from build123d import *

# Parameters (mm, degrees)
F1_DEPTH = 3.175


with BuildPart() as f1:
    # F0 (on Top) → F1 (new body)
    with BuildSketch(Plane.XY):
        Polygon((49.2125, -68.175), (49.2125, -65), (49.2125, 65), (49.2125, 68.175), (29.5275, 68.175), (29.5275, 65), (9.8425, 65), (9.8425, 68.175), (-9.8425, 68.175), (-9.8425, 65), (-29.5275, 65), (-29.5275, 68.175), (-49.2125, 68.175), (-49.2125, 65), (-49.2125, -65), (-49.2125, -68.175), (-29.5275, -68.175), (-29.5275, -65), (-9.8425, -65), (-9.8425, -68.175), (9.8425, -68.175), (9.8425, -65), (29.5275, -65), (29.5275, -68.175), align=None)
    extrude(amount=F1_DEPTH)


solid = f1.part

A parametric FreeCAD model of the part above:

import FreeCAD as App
import Part
import Sketcher
Q = App.Units.Quantity


def add_polygon(sketch, points):
    """Adds a closed chain of lines whose ends are joined by coincident constraints."""
    first, n = sketch.GeometryCount, len(points)
    for a, b in zip(points, points[1:] + points[:1]):
        sketch.addGeometry(Part.LineSegment(App.Vector(*a, 0), App.Vector(*b, 0)), False)
    for i in range(n):
        sketch.addConstraint(Sketcher.Constraint("Coincident", first + i, 2, first + (i + 1) % n, 1))

doc = App.newDocument("Part")
body = doc.addObject("PartDesign::Body", "Body")

sketch1 = body.newObject("Sketcher::SketchObject", "Sketch")
sketch1.AttachmentSupport = (doc.getObject("XY_Plane"), [""])
sketch1.MapMode = "FlatFace"
add_polygon(sketch1, [(49.2, -68.2), (49.2, 68.2), (29.5, 68.2), (29.5, 65), (9.8, 65), (9.8, 68.2), (-9.8, 68.2), (-9.8, 65), (-29.5, 65), (-29.5, 68.2), (-49.2, 68.2), (-49.2, -68.2), (-29.5, -68.2), (-29.5, -65), (-9.8, -65), (-9.8, -68.2), (9.8, -68.2), (9.8, -65), (29.5, -65), (29.5, -68.2)])
sketch1.addConstraint([
    Sketcher.Constraint("Vertical", 0),
    Sketcher.Constraint("Horizontal", 1),
    Sketcher.Constraint("Vertical", 2),
    Sketcher.Constraint("Horizontal", 3),
    Sketcher.Constraint("Vertical", 4),
    Sketcher.Constraint("Horizontal", 5),
    Sketcher.Constraint("Vertical", 6),
    Sketcher.Constraint("Horizontal", 7),
    Sketcher.Constraint("Vertical", 8),
    Sketcher.Constraint("Horizontal", 9),
    Sketcher.Constraint("Vertical", 10),
    Sketcher.Constraint("Horizontal", 11),
    Sketcher.Constraint("Vertical", 12),
    Sketcher.Constraint("Horizontal", 13),
    Sketcher.Constraint("Vertical", 14),
    Sketcher.Constraint("Horizontal", 15),
    Sketcher.Constraint("Vertical", 16),
    Sketcher.Constraint("Horizontal", 17),
    Sketcher.Constraint("Vertical", 18),
    Sketcher.Constraint("Horizontal", 19),
    Sketcher.Constraint("Symmetric", 0, 2, 10, 2, -1, 1),
    Sketcher.Constraint("Symmetric", 2, 2, 12, 2, -1, 1),
    Sketcher.Constraint("Symmetric", 4, 2, 14, 2, -1, 1),
    Sketcher.Constraint("Symmetric", 6, 2, 16, 2, -1, 1),
    Sketcher.Constraint("Symmetric", 8, 2, 18, 2, -1, 1),
    Sketcher.Constraint("Symmetric", 3, 2, 6, 2, -2),
    Sketcher.Constraint("Symmetric", 1, 2, 8, 2, -2),
    Sketcher.Constraint("Horizontal", 1, 2, 4, 2),
    Sketcher.Constraint("Equal", 1, 3),
    Sketcher.Constraint("Equal", 3, 5),
    Sketcher.Constraint("DistanceX", 1, 2, 1, 1, Q("0.775 in")),
    Sketcher.Constraint("DistanceY", 2, 2, 2, 1, Q("0.125 in")),
    Sketcher.Constraint("DistanceY", 0, 1, 0, 2, Q("136.35 mm")),
])
pad1 = body.newObject("PartDesign::Pad", "Pad")
pad1.Profile = sketch1
pad1.Length = Q("0.125 in")

doc.recompute()
